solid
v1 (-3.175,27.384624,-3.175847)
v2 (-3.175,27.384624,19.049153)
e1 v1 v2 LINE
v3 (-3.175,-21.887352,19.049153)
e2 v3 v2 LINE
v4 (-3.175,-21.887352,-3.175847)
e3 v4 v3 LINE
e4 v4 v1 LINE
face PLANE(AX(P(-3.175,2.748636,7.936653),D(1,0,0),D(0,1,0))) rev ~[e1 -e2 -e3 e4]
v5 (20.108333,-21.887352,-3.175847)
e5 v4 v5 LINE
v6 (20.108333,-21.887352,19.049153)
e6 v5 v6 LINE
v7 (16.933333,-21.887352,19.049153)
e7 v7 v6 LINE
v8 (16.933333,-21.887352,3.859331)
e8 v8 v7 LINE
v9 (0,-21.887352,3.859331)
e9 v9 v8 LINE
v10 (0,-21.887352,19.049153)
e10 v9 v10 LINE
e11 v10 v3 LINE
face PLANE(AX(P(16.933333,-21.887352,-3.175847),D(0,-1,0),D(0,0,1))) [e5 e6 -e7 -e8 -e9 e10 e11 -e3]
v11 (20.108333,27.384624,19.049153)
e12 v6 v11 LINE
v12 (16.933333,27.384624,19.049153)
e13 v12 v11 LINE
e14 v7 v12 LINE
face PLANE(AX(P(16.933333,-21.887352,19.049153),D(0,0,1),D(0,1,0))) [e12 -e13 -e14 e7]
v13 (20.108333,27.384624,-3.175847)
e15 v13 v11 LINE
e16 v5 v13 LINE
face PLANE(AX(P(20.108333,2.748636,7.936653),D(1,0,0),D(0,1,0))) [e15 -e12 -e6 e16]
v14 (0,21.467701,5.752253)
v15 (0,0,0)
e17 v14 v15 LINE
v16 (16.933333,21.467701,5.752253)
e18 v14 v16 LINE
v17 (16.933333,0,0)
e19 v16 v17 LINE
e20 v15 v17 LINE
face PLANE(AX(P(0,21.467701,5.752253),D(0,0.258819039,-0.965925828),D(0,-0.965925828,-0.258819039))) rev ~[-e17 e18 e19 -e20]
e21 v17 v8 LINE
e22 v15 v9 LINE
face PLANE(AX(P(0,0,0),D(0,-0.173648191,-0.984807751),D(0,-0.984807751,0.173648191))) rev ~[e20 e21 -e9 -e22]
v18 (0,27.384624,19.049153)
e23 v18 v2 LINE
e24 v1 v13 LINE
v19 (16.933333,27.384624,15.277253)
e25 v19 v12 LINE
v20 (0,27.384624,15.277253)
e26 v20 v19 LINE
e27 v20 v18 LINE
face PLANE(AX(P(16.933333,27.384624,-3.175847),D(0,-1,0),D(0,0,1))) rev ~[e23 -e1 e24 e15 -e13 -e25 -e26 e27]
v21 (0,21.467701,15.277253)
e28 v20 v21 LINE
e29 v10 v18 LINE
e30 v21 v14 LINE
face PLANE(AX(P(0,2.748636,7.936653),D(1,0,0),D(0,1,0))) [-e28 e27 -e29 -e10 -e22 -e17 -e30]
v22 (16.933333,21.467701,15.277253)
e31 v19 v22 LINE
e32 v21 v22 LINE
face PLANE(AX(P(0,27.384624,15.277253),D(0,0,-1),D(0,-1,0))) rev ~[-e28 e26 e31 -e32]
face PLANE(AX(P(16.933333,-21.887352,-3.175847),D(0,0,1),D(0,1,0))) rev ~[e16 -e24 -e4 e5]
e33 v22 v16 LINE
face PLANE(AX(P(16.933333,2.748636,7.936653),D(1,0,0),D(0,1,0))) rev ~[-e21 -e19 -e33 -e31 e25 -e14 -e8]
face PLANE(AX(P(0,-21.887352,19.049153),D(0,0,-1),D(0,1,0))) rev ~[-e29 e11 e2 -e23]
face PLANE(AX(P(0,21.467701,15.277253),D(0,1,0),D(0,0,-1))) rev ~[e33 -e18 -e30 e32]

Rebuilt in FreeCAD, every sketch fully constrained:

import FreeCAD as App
import Part
import Sketcher
from FreeCAD import Vector
Q = App.Units.Quantity

doc = App.newDocument("Part")
body = doc.addObject("PartDesign::Body", "Body")

# Sketch on YZ plane
sketch1 = doc.addObject("Sketcher::SketchObject", "Sketch")
body.addObject(sketch1)
sketch1.AttachmentSupport = (doc.YZ_Plane, [""])
sketch1.MapMode = "FlatFace"
sketch1.addGeometry(Part.LineSegment(Vector(21.467701, 5.752253, 0), Vector(0, 0, 0)), False)
sketch1.addGeometry(Part.LineSegment(Vector(0, 0, 0), Vector(-21.887352, 3.859331, 0)), False)
sketch1.addGeometry(Part.LineSegment(Vector(-21.887352, 3.859331, 0), Vector(-21.887352, -3.175847, 0)), False)
sketch1.addGeometry(Part.LineSegment(Vector(-21.887352, -3.175847, 0), Vector(27.384624, -3.175847, 0)), False)
sketch1.addGeometry(Part.LineSegment(Vector(27.384624, -3.175847, 0), Vector(27.384624, 15.277253, 0)), False)
sketch1.addGeometry(Part.LineSegment(Vector(27.384624, 15.277253, 0), Vector(21.467701, 15.277253, 0)), False)
sketch1.addGeometry(Part.LineSegment(Vector(21.467701, 15.277253, 0), Vector(21.467701, 5.752253, 0)), False)
sketch1.addConstraint(Sketcher.Constraint("Coincident", 0, 2, 1, 1))
sketch1.addConstraint(Sketcher.Constraint("Coincident", 1, 2, 2, 1))
sketch1.addConstraint(Sketcher.Constraint("Coincident", 2, 2, 3, 1))
sketch1.addConstraint(Sketcher.Constraint("Coincident", 3, 2, 4, 1))
sketch1.addConstraint(Sketcher.Constraint("Coincident", 4, 2, 5, 1))
sketch1.addConstraint(Sketcher.Constraint("Coincident", 5, 2, 6, 1))
sketch1.addConstraint(Sketcher.Constraint("Coincident", 6, 2, 0, 1))
sketch1.addConstraint(Sketcher.Constraint("Vertical", 2))
sketch1.addConstraint(Sketcher.Constraint("Horizontal", 3))
sketch1.addConstraint(Sketcher.Constraint("Vertical", 4))
sketch1.addConstraint(Sketcher.Constraint("Horizontal", 5))
sketch1.addConstraint(Sketcher.Constraint("Vertical", 6))
sketch1.addConstraint(Sketcher.Constraint("Coincident", 0, 2, -1, 1))
sketch1.addConstraint(Sketcher.Constraint("Equal", 0, 1))
sketch1.addConstraint(Sketcher.Constraint("Angle", 0, Q("-165 deg")))
sketch1.addConstraint(Sketcher.Constraint("Angle", 1, Q("169.999999 deg")))
sketch1.addConstraint(Sketcher.Constraint("DistanceY", 6, 2, 6, 1, Q("0.375 in")))
sketch1.addConstraint(Sketcher.Constraint("Distance", 0, Q("0.875 in")))
sketch1.addConstraint(Sketcher.Constraint("DistanceY", 4, 1, 4, 2, Q("0.7265 in")))
sketch1.addConstraint(Sketcher.Constraint("DistanceX", 3, 1, 3, 2, 49.271976))
pad1 = doc.addObject("PartDesign::Pad", "Pad")
body.addObject(pad1)
pad1.Profile = sketch1
pad1.Length = 16.933333

# Sketch on YZ plane
sketch2 = doc.addObject("Sketcher::SketchObject", "Sketch001")
body.addObject(sketch2)
sketch2.AttachmentSupport = (doc.YZ_Plane, [""])
sketch2.MapMode = "FlatFace"
sketch2.addGeometry(Part.LineSegment(Vector(-21.887352, 19.049153, 0), Vector(-21.887352, -3.175847, 0)), False)
sketch2.addGeometry(Part.LineSegment(Vector(-21.887352, -3.175847, 0), Vector(27.384624, -3.175847, 0)), False)
sketch2.addGeometry(Part.LineSegment(Vector(27.384624, -3.175847, 0), Vector(27.384624, 19.049153, 0)), False)
sketch2.addGeometry(Part.LineSegment(Vector(27.384624, 19.049153, 0), Vector(-21.887352, 19.049153, 0)), False)
sketch2.addConstraint(Sketcher.Constraint("Coincident", 0, 2, 1, 1))
sketch2.addConstraint(Sketcher.Constraint("Coincident", 1, 2, 2, 1))
sketch2.addConstraint(Sketcher.Constraint("Coincident", 2, 2, 3, 1))
sketch2.addConstraint(Sketcher.Constraint("Coincident", 3, 2, 0, 1))
sketch2.addConstraint(Sketcher.Constraint("Vertical", 0))
sketch2.addConstraint(Sketcher.Constraint("Horizontal", 1))
sketch2.addConstraint(Sketcher.Constraint("Vertical", 2))
sketch2.addConstraint(Sketcher.Constraint("Horizontal", 3))
sketch2.addConstraint(Sketcher.Constraint("DistanceY", 0, 2, 0, 1, Q("0.875 in")))
sketch2.addConstraint(Sketcher.Constraint("DistanceX", 1, 1, 1, 2, 49.271976))
sketch2.addConstraint(Sketcher.Constraint("DistanceX", 0, 2, -1, 1, 21.887352))
sketch2.addConstraint(Sketcher.Constraint("DistanceY", 0, 2, -1, 1, 3.175847))
pad2 = doc.addObject("PartDesign::Pad", "Pad001")
body.addObject(pad2)
pad2.Profile = sketch2
pad2.Length = Q("0.125 in")
pad2.Reversed = True

# Sketch on YZ plane
sketch3 = doc.addObject("Sketcher::SketchObject", "Sketch002")
body.addObject(sketch3)
sketch3.AttachmentSupport = (doc.YZ_Plane, [""])
sketch3.MapMode = "FlatFace"
sketch3.AttachmentOffset = App.Placement(Vector(0, 0, 16.933333), App.Rotation())
sketch3.addGeometry(Part.LineSegment(Vector(-21.887352, 19.049153, 0), Vector(-21.887352, -3.175847, 0)), False)
sketch3.addGeometry(Part.LineSegment(Vector(-21.887352, -3.175847, 0), Vector(27.384624, -3.175847, 0)), False)
sketch3.addGeometry(Part.LineSegment(Vector(27.384624, -3.175847, 0), Vector(27.384624, 19.049153, 0)), False)
sketch3.addGeometry(Part.LineSegment(Vector(27.384624, 19.049153, 0), Vector(-21.887352, 19.049153, 0)), False)
sketch3.addConstraint(Sketcher.Constraint("Coincident", 0, 2, 1, 1))
sketch3.addConstraint(Sketcher.Constraint("Coincident", 1, 2, 2, 1))
sketch3.addConstraint(Sketcher.Constraint("Coincident", 2, 2, 3, 1))
sketch3.addConstraint(Sketcher.Constraint("Coincident", 3, 2, 0, 1))
sketch3.addConstraint(Sketcher.Constraint("Vertical", 0))
sketch3.addConstraint(Sketcher.Constraint("Horizontal", 1))
sketch3.addConstraint(Sketcher.Constraint("Vertical", 2))
sketch3.addConstraint(Sketcher.Constraint("Horizontal", 3))
sketch3.addConstraint(Sketcher.Constraint("DistanceY", 0, 2, 0, 1, Q("0.875 in")))
sketch3.addConstraint(Sketcher.Constraint("DistanceX", 1, 1, 1, 2, 49.271976))
sketch3.addConstraint(Sketcher.Constraint("DistanceX", 0, 2, -1, 1, 21.887352))
sketch3.addConstraint(Sketcher.Constraint("DistanceY", 0, 2, -1, 1, 3.175847))
pad3 = doc.addObject("PartDesign::Pad", "Pad002")
body.addObject(pad3)
pad3.Profile = sketch3
pad3.Length = Q("0.125 in")

doc.recompute()
